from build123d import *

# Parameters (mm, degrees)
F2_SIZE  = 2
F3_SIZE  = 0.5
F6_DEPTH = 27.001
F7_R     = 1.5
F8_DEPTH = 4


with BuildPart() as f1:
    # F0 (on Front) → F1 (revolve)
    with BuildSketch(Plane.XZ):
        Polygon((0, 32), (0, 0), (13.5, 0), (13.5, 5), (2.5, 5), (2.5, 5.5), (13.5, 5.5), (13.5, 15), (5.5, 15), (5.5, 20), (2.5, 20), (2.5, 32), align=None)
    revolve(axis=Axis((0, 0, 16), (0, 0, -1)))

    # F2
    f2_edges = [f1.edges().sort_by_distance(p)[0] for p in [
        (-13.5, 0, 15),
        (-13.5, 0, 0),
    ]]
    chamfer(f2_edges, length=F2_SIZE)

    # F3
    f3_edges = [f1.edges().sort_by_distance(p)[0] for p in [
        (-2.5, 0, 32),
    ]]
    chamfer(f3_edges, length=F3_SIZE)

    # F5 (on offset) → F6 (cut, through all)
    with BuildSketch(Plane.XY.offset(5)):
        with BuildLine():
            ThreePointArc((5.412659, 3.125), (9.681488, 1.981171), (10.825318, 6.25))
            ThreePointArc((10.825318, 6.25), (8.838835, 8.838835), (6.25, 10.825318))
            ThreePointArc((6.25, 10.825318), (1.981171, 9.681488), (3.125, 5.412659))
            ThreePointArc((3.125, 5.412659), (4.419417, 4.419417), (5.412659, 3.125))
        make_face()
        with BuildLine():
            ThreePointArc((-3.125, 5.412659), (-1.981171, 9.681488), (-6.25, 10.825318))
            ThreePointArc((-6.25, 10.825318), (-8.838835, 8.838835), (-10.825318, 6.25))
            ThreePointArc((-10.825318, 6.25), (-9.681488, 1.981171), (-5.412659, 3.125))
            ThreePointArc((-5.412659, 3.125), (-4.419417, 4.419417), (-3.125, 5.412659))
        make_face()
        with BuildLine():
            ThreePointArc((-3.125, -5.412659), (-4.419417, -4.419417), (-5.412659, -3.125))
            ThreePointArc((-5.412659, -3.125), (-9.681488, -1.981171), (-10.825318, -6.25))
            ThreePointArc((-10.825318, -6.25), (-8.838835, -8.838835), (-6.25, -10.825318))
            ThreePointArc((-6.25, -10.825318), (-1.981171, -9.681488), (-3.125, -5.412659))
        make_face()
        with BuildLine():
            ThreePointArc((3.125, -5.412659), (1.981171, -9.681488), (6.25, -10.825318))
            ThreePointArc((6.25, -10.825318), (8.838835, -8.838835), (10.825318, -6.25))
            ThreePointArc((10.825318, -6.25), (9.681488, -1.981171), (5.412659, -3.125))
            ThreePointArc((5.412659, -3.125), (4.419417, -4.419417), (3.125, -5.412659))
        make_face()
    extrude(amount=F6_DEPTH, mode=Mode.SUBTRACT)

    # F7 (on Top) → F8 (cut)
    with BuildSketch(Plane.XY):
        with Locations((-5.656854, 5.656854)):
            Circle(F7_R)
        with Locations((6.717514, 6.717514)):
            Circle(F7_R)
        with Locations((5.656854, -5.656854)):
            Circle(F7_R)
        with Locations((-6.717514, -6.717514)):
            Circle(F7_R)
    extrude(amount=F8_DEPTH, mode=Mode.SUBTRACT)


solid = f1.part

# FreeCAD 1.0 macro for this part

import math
import FreeCAD as App
import Part
import Sketcher

V = App.Vector
Q = App.Units.Quantity


def edges_at(feature, points):
    """Names of the edges that pass closest to the given points."""
    edges = feature.Shape.Edges
    near = lambda p: min(range(len(edges)), key=lambda i: edges[i].distToShape(Part.Vertex(*p))[0])
    return sorted({f"Edge{near(p) + 1}" for p in points})


def add_polygon(sketch, points):
    """Adds a closed chain of lines whose ends are joined by coincident constraints."""
    first, n = sketch.GeometryCount, len(points)
    for a, b in zip(points, points[1:] + points[:1]):
        sketch.addGeometry(Part.LineSegment(App.Vector(*a, 0), App.Vector(*b, 0)), False)
    for i in range(n):
        sketch.addConstraint(Sketcher.Constraint("Coincident", first + i, 2, first + (i + 1) % n, 1))

doc = App.newDocument("Part")
body = doc.addObject("PartDesign::Body", "Body")

# Sketch on XZ plane
sketch1 = body.newObject("Sketcher::SketchObject", "Sketch")
sketch1.AttachmentSupport = (doc.getObject("XZ_Plane"), [""])
sketch1.MapMode = "FlatFace"
add_polygon(sketch1, [(0, 32), (0, 0), (13.5, 0), (13.5, 5), (2.5, 5), (2.5, 5.5), (13.5, 5.5), (13.5, 15), (5.5, 15), (5.5, 20), (2.5, 20), (2.5, 32)])  # lines 0-11
sketch1.addConstraint(Sketcher.Constraint("Vertical", 0))
sketch1.addConstraint(Sketcher.Constraint("Horizontal", 1))
sketch1.addConstraint(Sketcher.Constraint("Vertical", 2))
sketch1.addConstraint(Sketcher.Constraint("Horizontal", 3))
sketch1.addConstraint(Sketcher.Constraint("Vertical", 4))
sketch1.addConstraint(Sketcher.Constraint("Horizontal", 5))
sketch1.addConstraint(Sketcher.Constraint("Vertical", 6))
sketch1.addConstraint(Sketcher.Constraint("Horizontal", 7))
sketch1.addConstraint(Sketcher.Constraint("Vertical", 8))
sketch1.addConstraint(Sketcher.Constraint("Horizontal", 9))
sketch1.addConstraint(Sketcher.Constraint("Vertical", 10))
sketch1.addConstraint(Sketcher.Constraint("Horizontal", 11))
sketch1.addConstraint(Sketcher.Constraint("Coincident", 0, 2, -1, 1))
sketch1.addConstraint(Sketcher.Constraint("Vertical", 2, 2, 5, 2))
sketch1.addConstraint(Sketcher.Constraint("Vertical", 4, 2, 9, 2))
sketch1.addConstraint(Sketcher.Constraint("Equal", 2, 8))
sketch1.addConstraint(Sketcher.Constraint("DistanceX", 3, 2, 3, 1, Q("11 mm")))
sketch1.addConstraint(Sketcher.Constraint("DistanceX", 7, 2, 7, 1, Q("8 mm")))
sketch1.addConstraint(Sketcher.Constraint("DistanceY", 0, 2, 0, 1, Q("32 mm")))
sketch1.addConstraint(Sketcher.Constraint("DistanceY", 2, 1, 2, 2, Q("5 mm")))
sketch1.addConstraint(Sketcher.Constraint("DistanceY", 10, 1, 10, 2, Q("12 mm")))
sketch1.addConstraint(Sketcher.Constraint("DistanceX", 1, 1, 1, 2, Q("13.5 mm")))
sketch1.addConstraint(Sketcher.Constraint("DistanceY", 4, 1, 4, 2, Q("0.5 mm")))
revolution = body.newObject("PartDesign::Revolution", "Revolution")
revolution.Profile = sketch1
revolution.ReferenceAxis = (sketch1, ["V_Axis"])
revolution.Angle = 360
doc.recompute()

chamfer = body.newObject("PartDesign::Chamfer", "Chamfer")
chamfer.Base = (revolution, edges_at(revolution, [(-13.5, 0, 15), (-13.5, 0, 0)]))
chamfer.Size = 2
doc.recompute()

chamfer2 = body.newObject("PartDesign::Chamfer", "Chamfer001")
chamfer2.Base = (chamfer, edges_at(chamfer, [(-2.5, 0, 32)]))
chamfer2.Size = 0.5

# Sketch on XY plane
sketch2 = body.newObject("Sketcher::SketchObject", "Sketch001")
sketch2.AttachmentSupport = (doc.getObject("XY_Plane"), [""])
sketch2.MapMode = "FlatFace"
sketch2.AttachmentOffset = App.Placement(V(0, 0, 5), App.Rotation())
sketch2.addGeometry(Part.ArcOfCircle(Part.Circle(V(8.1, 4.7, 0), V(0, 0, 1), 3.1), math.radians(-150), math.radians(30)), False)
sketch2.addGeometry(Part.ArcOfCircle(Part.Circle(V(0, 0, 0), V(0, 0, 1), 12.5), math.radians(30), math.radians(60)), False)
sketch2.addGeometry(Part.ArcOfCircle(Part.Circle(V(4.7, 8.1, 0), V(0, 0, 1), 3.1), math.radians(60), math.radians(240)), False)
sketch2.addGeometry(Part.ArcOfCircle(Part.Circle(V(0, 0, 0), V(0, 0, 1), 6.3), math.radians(30), math.radians(60)), False)
sketch2.addGeometry(Part.ArcOfCircle(Part.Circle(V(-4.7, 8.1, 0), V(0, 0, 1), 3.1), math.radians(-60), math.radians(120)), False)
sketch2.addGeometry(Part.ArcOfCircle(Part.Circle(V(0, 0, 0), V(0, 0, 1), 12.5), math.radians(120), math.radians(150)), False)
sketch2.addGeometry(Part.ArcOfCircle(Part.Circle(V(-8.1, 4.7, 0), V(0, 0, 1), 3.1), math.radians(150), math.radians(330)), False)
sketch2.addGeometry(Part.ArcOfCircle(Part.Circle(V(0, 0, 0), V(0, 0, 1), 6.3), math.radians(120), math.radians(150)), False)
sketch2.addGeometry(Part.ArcOfCircle(Part.Circle(V(0, 0, 0), V(0, 0, 1), 6.3), math.radians(-150), math.radians(-120)), False)
sketch2.addGeometry(Part.ArcOfCircle(Part.Circle(V(-8.1, -4.7, 0), V(0, 0, 1), 3.1), math.radians(30), math.radians(210)), False)
sketch2.addGeometry(Part.ArcOfCircle(Part.Circle(V(0, 0, 0), V(0, 0, 1), 12.5), math.radians(-150), math.radians(-120)), False)
sketch2.addGeometry(Part.ArcOfCircle(Part.Circle(V(-4.7, -8.1, 0), V(0, 0, 1), 3.1), math.radians(-120), math.radians(60)), False)
sketch2.addGeometry(Part.ArcOfCircle(Part.Circle(V(4.7, -8.1, 0), V(0, 0, 1), 3.1), math.radians(120), math.radians(300)), False)
sketch2.addGeometry(Part.ArcOfCircle(Part.Circle(V(0, 0, 0), V(0, 0, 1), 12.5), math.radians(-60), math.radians(-30)), False)
sketch2.addGeometry(Part.ArcOfCircle(Part.Circle(V(8.1, -4.7, 0), V(0, 0, 1), 3.1), math.radians(-30), math.radians(150)), False)
sketch2.addGeometry(Part.ArcOfCircle(Part.Circle(V(0, 0, 0), V(0, 0, 1), 6.3), math.radians(-60), math.radians(-30)), False)
sketch2.addConstraint(Sketcher.Constraint("Tangent", 0, 2, 1, 1))
sketch2.addConstraint(Sketcher.Constraint("Tangent", 1, 2, 2, 1))
sketch2.addConstraint(Sketcher.Constraint("Tangent", 2, 2, 3, 2))
sketch2.addConstraint(Sketcher.Constraint("Tangent", 3, 1, 0, 1))
sketch2.addConstraint(Sketcher.Constraint("Tangent", 4, 2, 5, 1))
sketch2.addConstraint(Sketcher.Constraint("Tangent", 5, 2, 6, 1))
sketch2.addConstraint(Sketcher.Constraint("Tangent", 6, 2, 7, 2))
sketch2.addConstraint(Sketcher.Constraint("Tangent", 7, 1, 4, 1))
sketch2.addConstraint(Sketcher.Constraint("Tangent", 8, 1, 9, 1))
sketch2.addConstraint(Sketcher.Constraint("Tangent", 9, 2, 10, 1))
sketch2.addConstraint(Sketcher.Constraint("Tangent", 10, 2, 11, 1))
sketch2.addConstraint(Sketcher.Constraint("Tangent", 11, 2, 8, 2))
sketch2.addConstraint(Sketcher.Constraint("Tangent", 12, 2, 13, 1))
sketch2.addConstraint(Sketcher.Constraint("Tangent", 13, 2, 14, 1))
sketch2.addConstraint(Sketcher.Constraint("Tangent", 14, 2, 15, 2))
sketch2.addConstraint(Sketcher.Constraint("Tangent", 15, 1, 12, 1))
sketch2.addConstraint(Sketcher.Constraint("Coincident", 1, 3, -1, 1))
sketch2.addConstraint(Sketcher.Constraint("Coincident", 5, 3, -1, 1))
sketch2.addConstraint(Sketcher.Constraint("Coincident", 10, 3, -1, 1))
sketch2.addConstraint(Sketcher.Constraint("Coincident", 13, 3, -1, 1))
sketch2.addConstraint(Sketcher.Constraint("Equal", 0, 2))
sketch2.addConstraint(Sketcher.Constraint("Equal", 2, 4))
sketch2.addConstraint(Sketcher.Constraint("Equal", 1, 5))
sketch2.addConstraint(Sketcher.Constraint("Equal", 4, 6))
sketch2.addConstraint(Sketcher.Constraint("Equal", 3, 7))
sketch2.addConstraint(Sketcher.Constraint("Equal", 7, 8))
sketch2.addConstraint(Sketcher.Constraint("Equal", 6, 9))
sketch2.addConstraint(Sketcher.Constraint("Equal", 5, 10))
sketch2.addConstraint(Sketcher.Constraint("Equal", 9, 11))
sketch2.addConstraint(Sketcher.Constraint("Equal", 11, 12))
sketch2.addConstraint(Sketcher.Constraint("Equal", 10, 13))
sketch2.addConstraint(Sketcher.Constraint("Equal", 12, 14))
sketch2.addConstraint(Sketcher.Constraint("Equal", 8, 15))
sketch2.addConstraint(Sketcher.Constraint("Horizontal", 2, 3, 4, 3))
sketch2.addConstraint(Sketcher.Constraint("Horizontal", 0, 3, 6, 3))
sketch2.addConstraint(Sketcher.Constraint("Horizontal", 11, 3, 12, 3))
sketch2.addConstraint(Sketcher.Constraint("Horizontal", 9, 3, 14, 3))
sketch2.addConstraint(Sketcher.Constraint("Vertical", 6, 3, 9, 3))
sketch2.addConstraint(Sketcher.Constraint("Vertical", 4, 3, 11, 3))
sketch2.addConstraint(Sketcher.Constraint("Radius", 0, Q("3.125 mm")))
sketch2.addConstraint(Sketcher.Constraint("DistanceY", -1, 1, 0, 2, Q("6.25 mm")))
sketch2.addConstraint(Sketcher.Constraint("DistanceX", -1, 1, 1, 2, Q("6.25 mm")))
sketch2.addConstraint(Sketcher.Constraint("Radius", 3, Q("6.250021 mm")))
sketch2.addConstraint(Sketcher.Constraint("DistanceX", -1, 1, 2, 2, Q("3.125 mm")))
pocket1 = body.newObject("PartDesign::Pocket", "Pocket")
pocket1.Profile = sketch2
pocket1.Type = "ThroughAll"
pocket1.Reversed = True

# Sketch on XY plane
sketch3 = body.newObject("Sketcher::SketchObject", "Sketch002")
sketch3.AttachmentSupport = (doc.getObject("XY_Plane"), [""])
sketch3.MapMode = "FlatFace"
sketch3.addGeometry(Part.Circle(V(-5.7, 5.7, 0), V(0, 0, 1), 1.5), False)
sketch3.addGeometry(Part.Circle(V(6.7, 6.7, 0), V(0, 0, 1), 1.5), False)
sketch3.addGeometry(Part.Circle(V(5.7, -5.7, 0), V(0, 0, 1), 1.5), False)
sketch3.addGeometry(Part.Circle(V(-6.7, -6.7, 0), V(0, 0, 1), 1.5), False)
sketch3.addConstraint(Sketcher.Constraint("Equal", 0, 1))
sketch3.addConstraint(Sketcher.Constraint("Equal", 1, 2))
sketch3.addConstraint(Sketcher.Constraint("Equal", 2, 3))
sketch3.addConstraint(Sketcher.Constraint("Symmetric", 0, 3, 2, 3, -1, 1))
sketch3.addConstraint(Sketcher.Constraint("Symmetric", 1, 3, 3, 3, -1, 1))
sketch3.addConstraint(Sketcher.Constraint("Diameter", 0, Q("3 mm")))
sketch3.addConstraint(Sketcher.Constraint("DistanceY", 0, 3, 1, 3, Q("1.06066 mm")))
sketch3.addConstraint(Sketcher.Constraint("DistanceX", 2, 3, 1, 3, Q("1.06066 mm")))
sketch3.addConstraint(Sketcher.Constraint("DistanceX", 3, 3, 1, 3, Q("13.435028 mm")))
sketch3.addConstraint(Sketcher.Constraint("DistanceY", 3, 3, 1, 3, Q("13.435028 mm")))
pocket2 = body.newObject("PartDesign::Pocket", "Pocket001")
pocket2.Profile = sketch3
pocket2.Length = 4
pocket2.Reversed = True

doc.recompute()
